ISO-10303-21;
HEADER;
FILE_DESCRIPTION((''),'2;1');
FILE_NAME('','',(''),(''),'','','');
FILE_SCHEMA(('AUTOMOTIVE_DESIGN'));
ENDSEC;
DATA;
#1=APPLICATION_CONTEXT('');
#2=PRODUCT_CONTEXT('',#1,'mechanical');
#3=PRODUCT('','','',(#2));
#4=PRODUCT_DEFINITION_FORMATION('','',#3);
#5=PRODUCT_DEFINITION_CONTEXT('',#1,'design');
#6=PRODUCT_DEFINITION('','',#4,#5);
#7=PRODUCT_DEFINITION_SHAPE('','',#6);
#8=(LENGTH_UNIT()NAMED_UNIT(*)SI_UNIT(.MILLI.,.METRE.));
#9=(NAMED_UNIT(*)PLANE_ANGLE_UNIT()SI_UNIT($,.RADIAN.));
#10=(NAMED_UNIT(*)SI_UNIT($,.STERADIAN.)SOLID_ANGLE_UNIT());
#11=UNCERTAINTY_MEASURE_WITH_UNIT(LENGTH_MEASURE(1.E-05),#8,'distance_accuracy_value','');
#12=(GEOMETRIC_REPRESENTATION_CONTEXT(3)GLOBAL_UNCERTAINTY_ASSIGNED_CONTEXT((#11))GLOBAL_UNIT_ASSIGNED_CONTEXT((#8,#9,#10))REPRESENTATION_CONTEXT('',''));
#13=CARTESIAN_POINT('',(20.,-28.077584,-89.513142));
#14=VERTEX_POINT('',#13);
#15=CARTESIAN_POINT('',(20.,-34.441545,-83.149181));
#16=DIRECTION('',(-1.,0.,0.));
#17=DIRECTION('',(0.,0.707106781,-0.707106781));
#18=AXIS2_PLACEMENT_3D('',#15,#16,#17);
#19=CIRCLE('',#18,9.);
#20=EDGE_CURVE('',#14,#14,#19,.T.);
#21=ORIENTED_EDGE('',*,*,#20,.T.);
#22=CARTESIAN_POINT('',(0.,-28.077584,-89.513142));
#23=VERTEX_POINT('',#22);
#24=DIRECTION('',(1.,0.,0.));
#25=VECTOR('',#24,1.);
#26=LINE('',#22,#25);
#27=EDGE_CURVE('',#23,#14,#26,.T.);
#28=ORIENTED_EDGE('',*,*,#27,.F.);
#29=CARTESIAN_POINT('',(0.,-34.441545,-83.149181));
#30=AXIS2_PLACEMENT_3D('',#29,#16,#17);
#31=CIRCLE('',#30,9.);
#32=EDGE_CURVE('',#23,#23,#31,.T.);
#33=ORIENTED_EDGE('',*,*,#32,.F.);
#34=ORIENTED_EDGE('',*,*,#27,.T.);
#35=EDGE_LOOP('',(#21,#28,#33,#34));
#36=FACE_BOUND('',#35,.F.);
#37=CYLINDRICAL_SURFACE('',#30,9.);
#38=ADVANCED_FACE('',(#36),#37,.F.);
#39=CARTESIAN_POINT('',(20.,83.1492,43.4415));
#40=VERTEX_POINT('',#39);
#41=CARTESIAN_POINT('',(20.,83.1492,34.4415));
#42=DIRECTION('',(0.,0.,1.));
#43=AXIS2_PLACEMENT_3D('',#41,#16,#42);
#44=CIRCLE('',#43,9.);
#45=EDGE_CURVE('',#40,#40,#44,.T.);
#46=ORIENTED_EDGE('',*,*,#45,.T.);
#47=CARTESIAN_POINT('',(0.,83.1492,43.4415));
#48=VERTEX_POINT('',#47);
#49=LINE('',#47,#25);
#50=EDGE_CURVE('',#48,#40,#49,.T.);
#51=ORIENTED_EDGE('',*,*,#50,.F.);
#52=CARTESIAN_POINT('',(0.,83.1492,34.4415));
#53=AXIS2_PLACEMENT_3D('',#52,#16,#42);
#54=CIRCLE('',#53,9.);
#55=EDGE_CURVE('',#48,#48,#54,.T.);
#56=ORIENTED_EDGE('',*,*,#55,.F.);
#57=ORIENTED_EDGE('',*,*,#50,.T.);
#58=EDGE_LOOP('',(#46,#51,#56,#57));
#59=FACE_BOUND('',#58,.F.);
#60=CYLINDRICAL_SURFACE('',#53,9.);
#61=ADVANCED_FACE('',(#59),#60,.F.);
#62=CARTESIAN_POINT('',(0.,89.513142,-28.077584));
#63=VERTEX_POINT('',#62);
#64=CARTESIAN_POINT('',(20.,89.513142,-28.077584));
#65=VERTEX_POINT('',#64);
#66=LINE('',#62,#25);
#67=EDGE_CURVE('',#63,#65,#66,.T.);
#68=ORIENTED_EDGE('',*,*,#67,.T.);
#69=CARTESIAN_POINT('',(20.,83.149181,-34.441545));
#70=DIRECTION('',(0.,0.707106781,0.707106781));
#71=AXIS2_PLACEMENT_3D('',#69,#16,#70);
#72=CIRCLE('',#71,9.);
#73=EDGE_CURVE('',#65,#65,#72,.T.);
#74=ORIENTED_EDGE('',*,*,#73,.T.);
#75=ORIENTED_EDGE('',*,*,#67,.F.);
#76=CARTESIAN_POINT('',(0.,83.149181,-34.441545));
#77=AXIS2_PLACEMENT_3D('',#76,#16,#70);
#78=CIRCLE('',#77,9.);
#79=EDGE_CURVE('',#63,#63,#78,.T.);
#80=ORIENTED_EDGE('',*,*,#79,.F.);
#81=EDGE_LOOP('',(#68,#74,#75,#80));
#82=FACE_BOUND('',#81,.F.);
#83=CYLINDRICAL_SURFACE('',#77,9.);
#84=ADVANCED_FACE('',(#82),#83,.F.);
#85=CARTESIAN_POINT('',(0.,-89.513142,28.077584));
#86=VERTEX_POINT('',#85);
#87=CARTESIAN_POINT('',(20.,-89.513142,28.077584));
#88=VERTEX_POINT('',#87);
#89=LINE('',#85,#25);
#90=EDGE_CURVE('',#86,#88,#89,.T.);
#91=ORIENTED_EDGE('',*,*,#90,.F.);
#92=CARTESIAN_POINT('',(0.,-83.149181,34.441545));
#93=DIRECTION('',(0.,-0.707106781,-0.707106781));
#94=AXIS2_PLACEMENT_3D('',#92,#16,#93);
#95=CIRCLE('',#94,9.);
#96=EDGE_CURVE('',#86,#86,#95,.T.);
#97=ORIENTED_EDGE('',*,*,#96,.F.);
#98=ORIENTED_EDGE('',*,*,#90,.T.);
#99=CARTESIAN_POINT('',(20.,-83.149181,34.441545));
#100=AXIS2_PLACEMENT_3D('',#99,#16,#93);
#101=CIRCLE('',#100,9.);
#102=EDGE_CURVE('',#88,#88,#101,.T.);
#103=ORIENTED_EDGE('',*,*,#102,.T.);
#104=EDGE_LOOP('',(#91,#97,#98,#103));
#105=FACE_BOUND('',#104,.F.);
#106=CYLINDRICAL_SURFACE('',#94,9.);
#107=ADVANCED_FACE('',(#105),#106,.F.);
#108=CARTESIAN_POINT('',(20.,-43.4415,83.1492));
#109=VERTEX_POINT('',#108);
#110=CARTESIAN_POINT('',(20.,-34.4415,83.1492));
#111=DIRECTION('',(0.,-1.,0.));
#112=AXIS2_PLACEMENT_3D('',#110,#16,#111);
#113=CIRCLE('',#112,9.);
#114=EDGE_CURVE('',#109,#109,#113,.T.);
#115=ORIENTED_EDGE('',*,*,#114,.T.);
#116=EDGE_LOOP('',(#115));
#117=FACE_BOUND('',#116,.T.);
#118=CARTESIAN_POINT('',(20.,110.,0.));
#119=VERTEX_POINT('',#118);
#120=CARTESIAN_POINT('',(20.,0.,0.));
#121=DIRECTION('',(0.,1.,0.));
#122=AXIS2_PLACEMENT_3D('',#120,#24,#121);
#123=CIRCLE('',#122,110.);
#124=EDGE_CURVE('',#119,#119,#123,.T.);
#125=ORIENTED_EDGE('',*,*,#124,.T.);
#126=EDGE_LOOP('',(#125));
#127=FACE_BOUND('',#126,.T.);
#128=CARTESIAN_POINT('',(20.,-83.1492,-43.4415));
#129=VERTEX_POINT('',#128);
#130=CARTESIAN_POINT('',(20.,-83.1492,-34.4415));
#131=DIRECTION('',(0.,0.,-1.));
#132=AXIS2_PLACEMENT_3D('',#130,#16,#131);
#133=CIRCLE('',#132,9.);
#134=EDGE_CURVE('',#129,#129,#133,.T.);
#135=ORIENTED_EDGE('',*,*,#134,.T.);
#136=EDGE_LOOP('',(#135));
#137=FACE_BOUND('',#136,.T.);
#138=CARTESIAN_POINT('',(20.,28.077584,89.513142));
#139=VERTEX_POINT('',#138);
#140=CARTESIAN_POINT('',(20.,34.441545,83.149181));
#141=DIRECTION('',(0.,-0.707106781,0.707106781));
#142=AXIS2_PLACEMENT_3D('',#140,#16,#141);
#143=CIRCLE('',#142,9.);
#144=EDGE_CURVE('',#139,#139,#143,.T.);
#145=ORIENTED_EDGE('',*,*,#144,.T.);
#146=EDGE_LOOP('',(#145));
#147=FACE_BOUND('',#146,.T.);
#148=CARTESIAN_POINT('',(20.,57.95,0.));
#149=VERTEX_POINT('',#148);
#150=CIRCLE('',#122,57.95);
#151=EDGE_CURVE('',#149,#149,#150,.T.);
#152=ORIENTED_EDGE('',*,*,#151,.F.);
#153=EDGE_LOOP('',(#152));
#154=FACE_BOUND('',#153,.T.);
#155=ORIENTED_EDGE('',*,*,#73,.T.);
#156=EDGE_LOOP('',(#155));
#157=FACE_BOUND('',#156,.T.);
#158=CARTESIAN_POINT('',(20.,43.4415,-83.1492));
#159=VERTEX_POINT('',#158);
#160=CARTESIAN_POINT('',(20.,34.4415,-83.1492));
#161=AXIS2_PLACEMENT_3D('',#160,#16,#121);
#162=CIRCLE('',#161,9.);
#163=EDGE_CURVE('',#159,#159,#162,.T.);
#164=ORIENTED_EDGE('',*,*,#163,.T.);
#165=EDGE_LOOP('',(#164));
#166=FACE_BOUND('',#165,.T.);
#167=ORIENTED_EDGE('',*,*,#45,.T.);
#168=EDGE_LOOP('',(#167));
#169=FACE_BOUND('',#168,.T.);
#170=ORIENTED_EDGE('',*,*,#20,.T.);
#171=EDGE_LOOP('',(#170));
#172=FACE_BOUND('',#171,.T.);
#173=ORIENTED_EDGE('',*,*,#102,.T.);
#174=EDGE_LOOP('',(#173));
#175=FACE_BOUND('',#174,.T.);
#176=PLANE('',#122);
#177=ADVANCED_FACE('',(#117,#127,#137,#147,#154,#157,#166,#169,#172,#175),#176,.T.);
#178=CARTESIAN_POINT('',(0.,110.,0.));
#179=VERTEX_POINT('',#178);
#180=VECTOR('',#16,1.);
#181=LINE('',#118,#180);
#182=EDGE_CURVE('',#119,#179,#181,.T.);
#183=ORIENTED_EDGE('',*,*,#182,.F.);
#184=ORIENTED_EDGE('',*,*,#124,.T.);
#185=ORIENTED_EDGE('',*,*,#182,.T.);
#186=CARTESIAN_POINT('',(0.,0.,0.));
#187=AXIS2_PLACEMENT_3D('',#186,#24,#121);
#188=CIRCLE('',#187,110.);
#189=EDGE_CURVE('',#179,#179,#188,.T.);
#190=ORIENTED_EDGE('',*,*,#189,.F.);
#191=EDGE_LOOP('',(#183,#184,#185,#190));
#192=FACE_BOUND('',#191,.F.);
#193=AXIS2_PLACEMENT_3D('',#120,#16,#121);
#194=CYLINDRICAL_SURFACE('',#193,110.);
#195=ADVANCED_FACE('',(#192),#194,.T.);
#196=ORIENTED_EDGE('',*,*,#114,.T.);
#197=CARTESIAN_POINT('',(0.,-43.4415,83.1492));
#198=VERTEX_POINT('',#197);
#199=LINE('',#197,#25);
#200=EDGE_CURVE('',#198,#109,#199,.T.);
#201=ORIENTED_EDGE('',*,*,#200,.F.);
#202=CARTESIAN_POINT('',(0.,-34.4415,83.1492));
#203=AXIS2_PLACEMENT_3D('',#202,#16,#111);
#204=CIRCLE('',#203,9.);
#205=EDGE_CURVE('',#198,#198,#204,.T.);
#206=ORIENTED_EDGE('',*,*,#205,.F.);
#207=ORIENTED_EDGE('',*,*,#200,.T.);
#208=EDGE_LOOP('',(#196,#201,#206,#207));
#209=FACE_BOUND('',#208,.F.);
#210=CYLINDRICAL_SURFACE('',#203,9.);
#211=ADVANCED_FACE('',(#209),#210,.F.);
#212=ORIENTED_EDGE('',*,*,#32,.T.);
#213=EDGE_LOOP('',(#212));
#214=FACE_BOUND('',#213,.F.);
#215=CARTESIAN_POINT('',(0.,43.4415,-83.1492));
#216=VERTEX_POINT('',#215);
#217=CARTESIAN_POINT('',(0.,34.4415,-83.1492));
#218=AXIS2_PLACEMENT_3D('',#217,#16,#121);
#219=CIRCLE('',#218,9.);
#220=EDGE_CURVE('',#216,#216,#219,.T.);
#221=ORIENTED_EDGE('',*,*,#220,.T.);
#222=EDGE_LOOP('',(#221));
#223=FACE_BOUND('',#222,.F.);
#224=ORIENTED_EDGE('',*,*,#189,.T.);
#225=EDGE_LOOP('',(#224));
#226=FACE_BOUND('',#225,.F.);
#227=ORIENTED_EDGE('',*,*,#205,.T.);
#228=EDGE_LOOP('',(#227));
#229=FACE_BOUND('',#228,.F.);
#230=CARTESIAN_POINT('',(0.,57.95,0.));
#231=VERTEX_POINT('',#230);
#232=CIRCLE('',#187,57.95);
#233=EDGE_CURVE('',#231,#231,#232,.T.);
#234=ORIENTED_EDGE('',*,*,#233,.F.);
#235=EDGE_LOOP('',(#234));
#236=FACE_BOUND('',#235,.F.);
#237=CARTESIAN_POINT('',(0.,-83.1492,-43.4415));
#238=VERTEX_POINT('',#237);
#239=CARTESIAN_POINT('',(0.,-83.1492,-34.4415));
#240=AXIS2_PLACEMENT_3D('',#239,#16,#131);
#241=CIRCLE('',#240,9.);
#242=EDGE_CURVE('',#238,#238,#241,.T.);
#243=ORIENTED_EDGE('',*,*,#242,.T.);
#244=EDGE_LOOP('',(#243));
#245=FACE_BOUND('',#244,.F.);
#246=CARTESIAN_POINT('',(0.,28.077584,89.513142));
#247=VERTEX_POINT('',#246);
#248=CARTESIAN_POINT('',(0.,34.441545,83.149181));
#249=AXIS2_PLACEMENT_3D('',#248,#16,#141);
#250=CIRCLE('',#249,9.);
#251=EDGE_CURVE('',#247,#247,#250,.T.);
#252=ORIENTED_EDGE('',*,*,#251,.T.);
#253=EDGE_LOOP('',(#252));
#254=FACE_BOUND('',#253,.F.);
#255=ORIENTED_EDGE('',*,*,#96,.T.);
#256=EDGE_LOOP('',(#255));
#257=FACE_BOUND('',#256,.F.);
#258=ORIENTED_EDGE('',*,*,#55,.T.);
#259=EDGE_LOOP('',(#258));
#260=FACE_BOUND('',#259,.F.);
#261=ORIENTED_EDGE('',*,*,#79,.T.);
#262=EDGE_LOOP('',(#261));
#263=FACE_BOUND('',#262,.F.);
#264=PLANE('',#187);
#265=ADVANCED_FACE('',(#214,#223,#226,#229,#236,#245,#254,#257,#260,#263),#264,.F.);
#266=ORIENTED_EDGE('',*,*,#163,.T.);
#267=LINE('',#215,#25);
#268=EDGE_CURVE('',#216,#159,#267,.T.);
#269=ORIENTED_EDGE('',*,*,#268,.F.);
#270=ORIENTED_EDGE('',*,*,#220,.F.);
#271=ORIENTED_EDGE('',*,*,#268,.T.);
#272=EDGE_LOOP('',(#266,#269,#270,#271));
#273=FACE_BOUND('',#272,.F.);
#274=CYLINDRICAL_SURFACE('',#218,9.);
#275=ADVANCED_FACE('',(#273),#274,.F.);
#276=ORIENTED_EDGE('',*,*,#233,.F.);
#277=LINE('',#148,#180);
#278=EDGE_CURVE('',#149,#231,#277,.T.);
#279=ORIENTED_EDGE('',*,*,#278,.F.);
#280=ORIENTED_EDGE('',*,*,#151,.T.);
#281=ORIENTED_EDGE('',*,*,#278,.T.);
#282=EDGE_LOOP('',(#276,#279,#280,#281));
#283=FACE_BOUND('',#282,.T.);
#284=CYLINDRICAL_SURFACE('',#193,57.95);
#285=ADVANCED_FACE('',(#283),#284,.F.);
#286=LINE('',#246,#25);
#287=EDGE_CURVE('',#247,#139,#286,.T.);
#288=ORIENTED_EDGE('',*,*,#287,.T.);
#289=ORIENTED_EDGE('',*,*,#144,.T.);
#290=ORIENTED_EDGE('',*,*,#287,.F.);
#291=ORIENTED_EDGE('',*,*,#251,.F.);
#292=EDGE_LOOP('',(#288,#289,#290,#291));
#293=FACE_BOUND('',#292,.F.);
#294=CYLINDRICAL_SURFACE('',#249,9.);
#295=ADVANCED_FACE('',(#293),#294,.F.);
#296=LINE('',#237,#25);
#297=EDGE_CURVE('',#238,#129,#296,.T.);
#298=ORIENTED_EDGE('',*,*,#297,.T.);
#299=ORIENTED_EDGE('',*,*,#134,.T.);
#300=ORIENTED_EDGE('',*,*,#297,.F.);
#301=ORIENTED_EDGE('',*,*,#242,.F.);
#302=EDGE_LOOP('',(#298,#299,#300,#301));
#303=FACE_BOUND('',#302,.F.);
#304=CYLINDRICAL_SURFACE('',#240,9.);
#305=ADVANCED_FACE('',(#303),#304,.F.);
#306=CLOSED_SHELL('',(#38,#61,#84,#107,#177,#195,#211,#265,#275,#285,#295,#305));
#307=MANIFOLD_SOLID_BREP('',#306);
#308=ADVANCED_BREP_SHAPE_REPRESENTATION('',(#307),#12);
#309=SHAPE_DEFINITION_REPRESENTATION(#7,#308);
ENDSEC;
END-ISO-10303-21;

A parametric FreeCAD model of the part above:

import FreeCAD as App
import Part
import Sketcher
from FreeCAD import Vector


def add_polygon(sketch, points):
    """Adds a closed chain of lines whose ends are joined by coincident constraints."""
    first, n = sketch.GeometryCount, len(points)
    for a, b in zip(points, points[1:] + points[:1]):
        sketch.addGeometry(Part.LineSegment(App.Vector(*a, 0), App.Vector(*b, 0)), False)
    for i in range(n):
        sketch.addConstraint(Sketcher.Constraint("Coincident", first + i, 2, first + (i + 1) % n, 1))

doc = App.newDocument("Part")
params = doc.addObject("Spreadsheet::Sheet", "Params")
for row, (alias, value) in enumerate([
    ("sketch1_width", "20 mm"),
    ("sketch1_height", "52.05 mm"),
    ("revolution_angle", "360 deg"),
    ("sketch2_diameter", "18 mm"),
], start=1):
    params.set(f"A{row}", alias)
    params.set(f"B{row}", "=" + value)
    params.setAlias(f"B{row}", alias)

body = doc.addObject("PartDesign::Body", "Body")

# Sketch on XY plane
sketch1 = doc.addObject("Sketcher::SketchObject", "Sketch")
body.addObject(sketch1)
sketch1.AttachmentSupport = (doc.XY_Plane, [""])
sketch1.MapMode = "FlatFace"
add_polygon(sketch1, [(20, 57.95), (20, 110), (0, 110), (0, 57.95)])  # lines 0-3
sketch1.addConstraint([
    Sketcher.Constraint("Vertical", 0),
    Sketcher.Constraint("Horizontal", 1),
    Sketcher.Constraint("Vertical", 2),
    Sketcher.Constraint("Horizontal", 3),
    Sketcher.Constraint("PointOnObject", 1, 2, -2),
    Sketcher.Constraint("DistanceX", 1, 2, 1, 1, 20.0),
    Sketcher.Constraint("DistanceY", -1, 1, 0, 2, 110.0),
    Sketcher.Constraint("DistanceY", 0, 1, 0, 2, 52.05),
])
sketch1.setExpression("Constraints[9]", "Params.sketch1_width")
sketch1.setExpression("Constraints[11]", "Params.sketch1_height")
revolution = doc.addObject("PartDesign::Revolution", "Revolution")
body.addObject(revolution)
revolution.Profile = sketch1
revolution.ReferenceAxis = (sketch1, ["H_Axis"])
revolution.setExpression("Angle", "Params.revolution_angle")

# Sketch on YZ plane
sketch2 = doc.addObject("Sketcher::SketchObject", "Sketch001")
body.addObject(sketch2)
sketch2.AttachmentSupport = (doc.YZ_Plane, [""])
sketch2.MapMode = "FlatFace"
sketch2.addGeometry(Part.Circle(Vector(83.1492, 34.4415, 0), Vector(0, 0, 1), 9), False)
sketch2.addConstraint([
    Sketcher.Constraint("Diameter", 0, 18.0),
    Sketcher.Constraint("DistanceX", -1, 1, 0, 3, 83.1492),
    Sketcher.Constraint("DistanceY", -1, 1, 0, 3, 34.4415),
])
sketch2.setExpression("Constraints[0]", "Params.sketch2_diameter")
pocket1 = doc.addObject("PartDesign::Pocket", "Pocket")
body.addObject(pocket1)
pocket1.Profile = sketch2
pocket1.Type = "ThroughAll"
pocket1.Reversed = True
doc.recompute()

polarpattern = doc.addObject("PartDesign::PolarPattern", "PolarPattern")
body.addObject(polarpattern)
polarpattern.Originals = [pocket1]
polarpattern.Axis = (doc.X_Axis, [""])
polarpattern.Angle = 360
polarpattern.Occurrences = 8
body.Tip = polarpattern

doc.recompute()
